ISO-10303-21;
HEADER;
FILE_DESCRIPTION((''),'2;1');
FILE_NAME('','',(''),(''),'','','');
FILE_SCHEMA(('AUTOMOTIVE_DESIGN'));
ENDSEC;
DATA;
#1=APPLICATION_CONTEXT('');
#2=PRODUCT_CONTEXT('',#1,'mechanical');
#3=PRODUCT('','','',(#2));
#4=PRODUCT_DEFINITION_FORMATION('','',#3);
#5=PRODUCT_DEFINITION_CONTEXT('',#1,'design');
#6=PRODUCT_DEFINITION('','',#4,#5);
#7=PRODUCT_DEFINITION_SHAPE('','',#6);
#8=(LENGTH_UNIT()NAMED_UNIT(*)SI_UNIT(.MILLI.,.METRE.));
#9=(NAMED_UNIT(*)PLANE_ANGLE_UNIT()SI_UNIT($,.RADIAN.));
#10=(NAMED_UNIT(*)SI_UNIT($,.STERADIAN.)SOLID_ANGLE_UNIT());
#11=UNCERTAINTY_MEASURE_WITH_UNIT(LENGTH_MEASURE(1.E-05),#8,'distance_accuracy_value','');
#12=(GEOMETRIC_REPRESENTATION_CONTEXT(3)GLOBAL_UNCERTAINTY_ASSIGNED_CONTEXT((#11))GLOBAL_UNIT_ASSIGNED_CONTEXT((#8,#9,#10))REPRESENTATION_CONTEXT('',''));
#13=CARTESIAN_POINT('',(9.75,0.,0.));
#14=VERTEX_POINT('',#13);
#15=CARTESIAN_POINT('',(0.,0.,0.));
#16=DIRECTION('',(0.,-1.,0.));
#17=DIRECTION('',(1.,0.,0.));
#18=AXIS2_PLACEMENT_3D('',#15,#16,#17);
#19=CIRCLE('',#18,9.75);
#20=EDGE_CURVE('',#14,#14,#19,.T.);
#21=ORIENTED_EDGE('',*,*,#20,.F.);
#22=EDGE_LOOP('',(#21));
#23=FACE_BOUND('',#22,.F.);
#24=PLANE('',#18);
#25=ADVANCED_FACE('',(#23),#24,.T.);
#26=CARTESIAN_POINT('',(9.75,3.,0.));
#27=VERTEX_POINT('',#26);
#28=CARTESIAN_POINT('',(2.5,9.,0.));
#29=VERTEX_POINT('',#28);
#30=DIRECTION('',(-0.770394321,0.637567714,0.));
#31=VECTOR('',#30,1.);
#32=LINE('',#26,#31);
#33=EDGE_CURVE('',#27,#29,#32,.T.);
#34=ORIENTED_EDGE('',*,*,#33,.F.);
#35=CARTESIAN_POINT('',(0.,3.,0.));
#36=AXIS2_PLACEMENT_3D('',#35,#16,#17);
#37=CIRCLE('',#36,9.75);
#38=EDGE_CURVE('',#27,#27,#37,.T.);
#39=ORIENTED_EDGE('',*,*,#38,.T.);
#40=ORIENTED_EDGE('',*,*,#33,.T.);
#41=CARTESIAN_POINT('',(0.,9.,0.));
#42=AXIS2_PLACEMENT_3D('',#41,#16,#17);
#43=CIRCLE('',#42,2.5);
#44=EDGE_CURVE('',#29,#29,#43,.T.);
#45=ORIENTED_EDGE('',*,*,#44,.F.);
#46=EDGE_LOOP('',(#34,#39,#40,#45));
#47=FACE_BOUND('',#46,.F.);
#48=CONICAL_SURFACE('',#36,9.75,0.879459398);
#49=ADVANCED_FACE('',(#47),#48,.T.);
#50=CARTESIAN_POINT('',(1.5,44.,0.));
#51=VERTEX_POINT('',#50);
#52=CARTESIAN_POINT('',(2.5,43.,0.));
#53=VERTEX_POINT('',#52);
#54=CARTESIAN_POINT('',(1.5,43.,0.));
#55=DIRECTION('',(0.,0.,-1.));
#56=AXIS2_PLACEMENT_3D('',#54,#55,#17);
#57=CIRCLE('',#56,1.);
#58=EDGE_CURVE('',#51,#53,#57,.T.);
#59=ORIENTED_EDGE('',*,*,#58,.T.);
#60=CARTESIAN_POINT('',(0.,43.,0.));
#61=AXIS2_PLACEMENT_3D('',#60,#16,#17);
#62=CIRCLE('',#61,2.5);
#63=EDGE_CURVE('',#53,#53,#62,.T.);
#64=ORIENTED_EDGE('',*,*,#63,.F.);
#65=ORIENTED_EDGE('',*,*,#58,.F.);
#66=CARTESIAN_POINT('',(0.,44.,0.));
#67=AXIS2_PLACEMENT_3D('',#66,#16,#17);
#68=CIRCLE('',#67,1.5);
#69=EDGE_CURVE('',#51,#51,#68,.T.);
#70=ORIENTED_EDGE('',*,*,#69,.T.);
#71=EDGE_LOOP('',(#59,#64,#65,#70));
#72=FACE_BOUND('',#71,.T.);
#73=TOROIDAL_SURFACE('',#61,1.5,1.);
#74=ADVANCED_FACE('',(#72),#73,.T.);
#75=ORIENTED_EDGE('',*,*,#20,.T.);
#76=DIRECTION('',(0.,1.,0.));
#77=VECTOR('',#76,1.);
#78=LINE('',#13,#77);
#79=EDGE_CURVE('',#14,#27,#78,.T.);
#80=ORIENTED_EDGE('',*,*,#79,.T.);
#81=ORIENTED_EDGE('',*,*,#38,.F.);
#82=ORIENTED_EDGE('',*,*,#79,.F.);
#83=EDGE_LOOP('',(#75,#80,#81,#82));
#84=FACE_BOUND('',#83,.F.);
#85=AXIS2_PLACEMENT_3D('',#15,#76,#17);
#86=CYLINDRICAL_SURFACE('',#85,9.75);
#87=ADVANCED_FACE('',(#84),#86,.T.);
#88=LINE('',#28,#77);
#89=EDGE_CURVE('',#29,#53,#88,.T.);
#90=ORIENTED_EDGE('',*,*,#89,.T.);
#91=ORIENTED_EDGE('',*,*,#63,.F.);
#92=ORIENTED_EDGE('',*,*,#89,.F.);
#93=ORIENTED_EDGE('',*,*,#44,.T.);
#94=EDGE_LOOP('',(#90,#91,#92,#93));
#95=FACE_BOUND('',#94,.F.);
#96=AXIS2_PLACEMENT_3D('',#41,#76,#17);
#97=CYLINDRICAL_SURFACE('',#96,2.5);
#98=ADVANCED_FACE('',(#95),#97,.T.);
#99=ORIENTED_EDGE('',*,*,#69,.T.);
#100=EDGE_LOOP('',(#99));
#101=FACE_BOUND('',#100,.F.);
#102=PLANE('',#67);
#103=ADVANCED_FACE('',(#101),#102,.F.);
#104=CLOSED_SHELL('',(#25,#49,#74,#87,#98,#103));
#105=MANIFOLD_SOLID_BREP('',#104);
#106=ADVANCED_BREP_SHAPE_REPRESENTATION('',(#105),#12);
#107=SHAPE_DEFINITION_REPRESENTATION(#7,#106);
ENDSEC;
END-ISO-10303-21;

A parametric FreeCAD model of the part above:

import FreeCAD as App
import Part
import Sketcher
Q = App.Units.Quantity


def edges_at(feature, points):
    """Names of the edges that pass closest to the given points."""
    edges = feature.Shape.Edges
    near = lambda p: min(range(len(edges)), key=lambda i: edges[i].distToShape(Part.Vertex(*p))[0])
    return sorted({f"Edge{near(p) + 1}" for p in points})

doc = App.newDocument("Part")
body = doc.addObject("PartDesign::Body", "Body")

# Sketch on XY plane
sketch1 = body.newObject("Sketcher::SketchObject", "Sketch")
sketch1.AttachmentSupport = (doc.getObject("XY_Plane"), [""])
sketch1.MapMode = "FlatFace"
sketch1.addGeometry(Part.LineSegment(App.Vector(0, 44, 0), App.Vector(0, 0, 0)), False)
sketch1.addGeometry(Part.LineSegment(App.Vector(0, 0, 0), App.Vector(9.75, 0, 0)), False)
sketch1.addGeometry(Part.LineSegment(App.Vector(9.75, 0, 0), App.Vector(9.75, 3, 0)), False)
sketch1.addGeometry(Part.LineSegment(App.Vector(9.75, 3, 0), App.Vector(2.5, 9, 0)), False)
sketch1.addGeometry(Part.LineSegment(App.Vector(2.5, 9, 0), App.Vector(2.5, 44, 0)), False)
sketch1.addGeometry(Part.LineSegment(App.Vector(2.5, 44, 0), App.Vector(0, 44, 0)), False)
sketch1.addConstraint(Sketcher.Constraint("Coincident", 0, 2, 1, 1))
sketch1.addConstraint(Sketcher.Constraint("Coincident", 1, 2, 2, 1))
sketch1.addConstraint(Sketcher.Constraint("Coincident", 2, 2, 3, 1))
sketch1.addConstraint(Sketcher.Constraint("Coincident", 3, 2, 4, 1))
sketch1.addConstraint(Sketcher.Constraint("Coincident", 4, 2, 5, 1))
sketch1.addConstraint(Sketcher.Constraint("Coincident", 5, 2, 0, 1))
sketch1.addConstraint(Sketcher.Constraint("Vertical", 0))
sketch1.addConstraint(Sketcher.Constraint("Horizontal", 1))
sketch1.addConstraint(Sketcher.Constraint("Vertical", 2))
sketch1.addConstraint(Sketcher.Constraint("Vertical", 4))
sketch1.addConstraint(Sketcher.Constraint("Horizontal", 5))
sketch1.addConstraint(Sketcher.Constraint("Coincident", 0, 2, -1, 1))
sketch1.addConstraint(Sketcher.Constraint("DistanceY", 0, 2, 0, 1, Q("44 mm")))
sketch1.addConstraint(Sketcher.Constraint("DistanceY", 2, 1, 2, 2, Q("3 mm")))
sketch1.addConstraint(Sketcher.Constraint("DistanceY", 4, 1, 4, 2, Q("35 mm")))
sketch1.addConstraint(Sketcher.Constraint("DistanceX", 5, 2, 5, 1, Q("2.5 mm")))
sketch1.addConstraint(Sketcher.Constraint("DistanceX", 1, 1, 1, 2, Q("9.75 mm")))
revolution = body.newObject("PartDesign::Revolution", "Revolution")
revolution.Profile = sketch1
revolution.ReferenceAxis = (sketch1, ["V_Axis"])
revolution.Angle = 360
doc.recompute()

fillet = body.newObject("PartDesign::Fillet", "Fillet")
fillet.Base = (revolution, edges_at(revolution, [(-2.5, 44, 0)]))
fillet.Radius = 1

doc.recompute()
